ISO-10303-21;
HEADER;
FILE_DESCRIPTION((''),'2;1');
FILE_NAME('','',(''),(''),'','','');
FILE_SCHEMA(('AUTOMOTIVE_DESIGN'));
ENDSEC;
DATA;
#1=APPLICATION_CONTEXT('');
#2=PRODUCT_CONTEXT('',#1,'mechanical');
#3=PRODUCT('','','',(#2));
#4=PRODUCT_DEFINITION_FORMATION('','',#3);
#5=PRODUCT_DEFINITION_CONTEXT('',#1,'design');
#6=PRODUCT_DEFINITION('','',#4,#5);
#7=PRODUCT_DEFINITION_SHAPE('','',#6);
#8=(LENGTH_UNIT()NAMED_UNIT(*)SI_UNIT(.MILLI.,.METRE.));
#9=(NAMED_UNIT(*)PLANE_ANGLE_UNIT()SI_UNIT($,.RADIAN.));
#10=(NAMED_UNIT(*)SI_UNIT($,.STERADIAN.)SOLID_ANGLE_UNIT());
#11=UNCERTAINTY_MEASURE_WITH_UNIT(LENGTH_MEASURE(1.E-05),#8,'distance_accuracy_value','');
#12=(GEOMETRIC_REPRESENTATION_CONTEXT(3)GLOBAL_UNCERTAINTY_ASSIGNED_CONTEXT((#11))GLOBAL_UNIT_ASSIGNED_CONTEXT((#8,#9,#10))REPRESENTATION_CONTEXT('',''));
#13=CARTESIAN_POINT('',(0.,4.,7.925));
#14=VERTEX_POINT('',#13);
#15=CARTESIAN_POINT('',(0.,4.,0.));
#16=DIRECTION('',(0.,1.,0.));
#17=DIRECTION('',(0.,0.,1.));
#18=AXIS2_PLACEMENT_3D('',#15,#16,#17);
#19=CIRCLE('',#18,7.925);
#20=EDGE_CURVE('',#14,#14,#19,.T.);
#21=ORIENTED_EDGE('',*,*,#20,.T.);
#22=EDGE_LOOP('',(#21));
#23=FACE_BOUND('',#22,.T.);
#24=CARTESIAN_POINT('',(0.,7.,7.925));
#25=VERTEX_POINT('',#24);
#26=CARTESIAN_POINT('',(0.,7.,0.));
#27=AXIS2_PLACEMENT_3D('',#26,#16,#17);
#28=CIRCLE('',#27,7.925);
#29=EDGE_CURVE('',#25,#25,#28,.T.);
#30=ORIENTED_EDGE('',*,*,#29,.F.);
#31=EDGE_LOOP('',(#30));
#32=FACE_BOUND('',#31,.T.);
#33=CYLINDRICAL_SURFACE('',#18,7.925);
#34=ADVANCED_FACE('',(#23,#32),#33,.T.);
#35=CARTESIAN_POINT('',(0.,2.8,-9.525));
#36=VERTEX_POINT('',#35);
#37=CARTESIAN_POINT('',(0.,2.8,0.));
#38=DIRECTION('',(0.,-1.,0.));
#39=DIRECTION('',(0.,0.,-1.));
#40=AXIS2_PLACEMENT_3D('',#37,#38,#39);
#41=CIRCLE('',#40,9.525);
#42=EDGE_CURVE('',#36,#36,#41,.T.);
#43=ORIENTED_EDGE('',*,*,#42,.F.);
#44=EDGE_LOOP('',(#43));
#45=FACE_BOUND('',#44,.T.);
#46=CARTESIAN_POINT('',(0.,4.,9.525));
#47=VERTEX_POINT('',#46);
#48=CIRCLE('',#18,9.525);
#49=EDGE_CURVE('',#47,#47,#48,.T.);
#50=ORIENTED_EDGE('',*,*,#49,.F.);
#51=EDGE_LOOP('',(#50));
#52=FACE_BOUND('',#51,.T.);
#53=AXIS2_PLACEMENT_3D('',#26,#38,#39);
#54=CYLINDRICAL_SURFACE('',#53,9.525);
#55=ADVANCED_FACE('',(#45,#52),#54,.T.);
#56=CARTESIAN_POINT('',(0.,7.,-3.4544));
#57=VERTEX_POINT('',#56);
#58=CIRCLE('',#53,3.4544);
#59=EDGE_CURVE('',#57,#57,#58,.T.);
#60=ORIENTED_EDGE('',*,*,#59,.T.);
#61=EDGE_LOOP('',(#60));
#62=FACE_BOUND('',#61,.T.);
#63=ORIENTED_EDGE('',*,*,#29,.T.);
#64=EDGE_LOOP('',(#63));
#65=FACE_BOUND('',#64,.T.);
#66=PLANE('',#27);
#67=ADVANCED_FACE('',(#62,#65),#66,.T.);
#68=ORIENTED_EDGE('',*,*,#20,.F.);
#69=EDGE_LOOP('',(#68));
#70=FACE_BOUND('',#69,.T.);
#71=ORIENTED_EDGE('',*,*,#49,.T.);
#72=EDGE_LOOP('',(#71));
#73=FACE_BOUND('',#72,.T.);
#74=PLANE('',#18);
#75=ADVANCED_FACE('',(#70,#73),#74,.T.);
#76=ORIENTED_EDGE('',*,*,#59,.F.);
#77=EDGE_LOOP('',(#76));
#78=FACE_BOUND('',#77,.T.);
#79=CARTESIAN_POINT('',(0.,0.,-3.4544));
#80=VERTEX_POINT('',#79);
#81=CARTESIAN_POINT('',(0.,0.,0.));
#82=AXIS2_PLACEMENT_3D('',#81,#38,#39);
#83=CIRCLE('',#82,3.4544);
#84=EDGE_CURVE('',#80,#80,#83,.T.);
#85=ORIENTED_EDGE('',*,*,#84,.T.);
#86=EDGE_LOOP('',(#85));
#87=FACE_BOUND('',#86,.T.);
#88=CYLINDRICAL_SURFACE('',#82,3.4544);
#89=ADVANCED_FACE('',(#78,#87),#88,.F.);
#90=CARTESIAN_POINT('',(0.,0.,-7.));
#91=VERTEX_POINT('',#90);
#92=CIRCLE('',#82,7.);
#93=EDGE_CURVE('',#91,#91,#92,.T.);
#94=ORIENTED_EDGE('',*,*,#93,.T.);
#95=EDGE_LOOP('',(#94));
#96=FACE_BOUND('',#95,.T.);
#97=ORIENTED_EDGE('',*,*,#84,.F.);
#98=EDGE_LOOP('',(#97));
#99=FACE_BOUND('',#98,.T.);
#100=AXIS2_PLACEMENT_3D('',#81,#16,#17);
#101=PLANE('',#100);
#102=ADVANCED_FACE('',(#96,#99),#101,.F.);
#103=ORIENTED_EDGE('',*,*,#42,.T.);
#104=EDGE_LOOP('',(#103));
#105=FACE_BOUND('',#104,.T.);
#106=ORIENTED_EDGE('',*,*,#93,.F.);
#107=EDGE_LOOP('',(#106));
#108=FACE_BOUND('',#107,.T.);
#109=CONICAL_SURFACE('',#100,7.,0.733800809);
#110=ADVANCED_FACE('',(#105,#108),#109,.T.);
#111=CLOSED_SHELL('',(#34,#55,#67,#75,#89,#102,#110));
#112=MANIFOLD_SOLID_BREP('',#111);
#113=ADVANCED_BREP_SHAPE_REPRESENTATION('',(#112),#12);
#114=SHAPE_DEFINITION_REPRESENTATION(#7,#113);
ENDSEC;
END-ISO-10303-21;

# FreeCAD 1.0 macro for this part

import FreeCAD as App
import Part
import Sketcher
Q = App.Units.Quantity

doc = App.newDocument("Part")
params = doc.addObject("Spreadsheet::Sheet", "Params")
for row, (alias, value) in enumerate([
    ("sketch1_diameter", "19.05 mm"),
    ("pad1_length", "7 mm"),
    ("hole_diameter", "6.9088 mm"),
    ("sketch3_diameter", "15.85 mm"),
    ("pocket1_length", "3 mm"),
    ("groove_angle", "360 deg"),
], start=1):
    params.set(f"A{row}", alias)
    params.set(f"B{row}", "=" + value)
    params.setAlias(f"B{row}", alias)

body = doc.addObject("PartDesign::Body", "Body")

sketch1 = body.newObject("Sketcher::SketchObject", "Sketch")
sketch1.AttachmentSupport = (doc.getObject("XZ_Plane"), [""])
sketch1.MapMode = "FlatFace"
sketch1.addGeometry(Part.Circle(App.Vector(0, 0, 0), App.Vector(0, 0, 1), 10), False)
sketch1.addConstraint(Sketcher.Constraint("Coincident", 0, 3, -1, 1))
sketch1.addConstraint(Sketcher.Constraint("Diameter", 0, Q("19.05 mm")))
sketch1.setExpression("Constraints[1]", "Params.sketch1_diameter")
pad1 = body.newObject("PartDesign::Pad", "Pad")
pad1.Profile = sketch1
pad1.setExpression("Length", "Params.pad1_length")
pad1.Reversed = True

sketch2 = body.newObject("Sketcher::SketchObject", "Sketch001")
sketch2.AttachmentSupport = (doc.getObject("XZ_Plane"), [""])
sketch2.MapMode = "FlatFace"
sketch2.addGeometry(Part.Circle(App.Vector(0, 0, 0), App.Vector(0, 0, 1), 3.5), False)
sketch2.addConstraint(Sketcher.Constraint("Coincident", 0, 3, -1, 1))
sketch2.addConstraint(Sketcher.Constraint("Diameter", 0, Q("6.9088 mm")))
doc.recompute()
hole = body.newObject("PartDesign::Hole", "Hole")
hole.Profile = sketch2
hole.ThreadType = "None"
hole.setExpression("Diameter", "Params.hole_diameter")
hole.DepthType = "ThroughAll"

sketch3 = body.newObject("Sketcher::SketchObject", "Sketch002")
sketch3.AttachmentSupport = (doc.getObject("XZ_Plane"), [""])
sketch3.MapMode = "FlatFace"
sketch3.AttachmentOffset = App.Placement(App.Vector(0, 0, -7), App.Rotation())
sketch3.addGeometry(Part.LineSegment(App.Vector(-13, -13, 0), App.Vector(-13, 13, 0)), False)
sketch3.addGeometry(Part.LineSegment(App.Vector(-13, 13, 0), App.Vector(13, 13, 0)), False)
sketch3.addGeometry(Part.LineSegment(App.Vector(13, 13, 0), App.Vector(13, -13, 0)), False)
sketch3.addGeometry(Part.LineSegment(App.Vector(13, -13, 0), App.Vector(-13, -13, 0)), False)
sketch3.addGeometry(Part.Circle(App.Vector(0, 0, 0), App.Vector(0, 0, 1), 8), False)
sketch3.addConstraint(Sketcher.Constraint("Coincident", 0, 2, 1, 1))
sketch3.addConstraint(Sketcher.Constraint("Coincident", 1, 2, 2, 1))
sketch3.addConstraint(Sketcher.Constraint("Coincident", 2, 2, 3, 1))
sketch3.addConstraint(Sketcher.Constraint("Coincident", 3, 2, 0, 1))
sketch3.addConstraint(Sketcher.Constraint("Vertical", 0))
sketch3.addConstraint(Sketcher.Constraint("Horizontal", 1))
sketch3.addConstraint(Sketcher.Constraint("Vertical", 2))
sketch3.addConstraint(Sketcher.Constraint("Horizontal", 3))
sketch3.addConstraint(Sketcher.Constraint("Coincident", 4, 3, -1, 1))
sketch3.addConstraint(Sketcher.Constraint("Symmetric", 0, 2, 2, 2, -1, 1))
sketch3.addConstraint(Sketcher.Constraint("Equal", 3, 0))
sketch3.addConstraint(Sketcher.Constraint("Diameter", 4, Q("15.85 mm")))
sketch3.addConstraint(Sketcher.Constraint("DistanceX", 1, 1, 1, 2, Q("26.618 mm")))
sketch3.setExpression("Constraints[11]", "Params.sketch3_diameter")
pocket1 = body.newObject("PartDesign::Pocket", "Pocket")
pocket1.Profile = sketch3
pocket1.setExpression("Length", "Params.pocket1_length")
pocket1.Reversed = True

sketch4 = body.newObject("Sketcher::SketchObject", "Sketch003")
sketch4.AttachmentSupport = (doc.getObject("XY_Plane"), [""])
sketch4.MapMode = "FlatFace"
sketch4.addGeometry(Part.LineSegment(App.Vector(-7, 0, 0), App.Vector(-9.5, 2.8, 0)), False)
sketch4.addGeometry(Part.LineSegment(App.Vector(-9.5, 2.8, 0), App.Vector(-11.9, 2.8, 0)), False)
sketch4.addGeometry(Part.LineSegment(App.Vector(-11.9, 2.8, 0), App.Vector(-11.9, -3.8, 0)), False)
sketch4.addGeometry(Part.LineSegment(App.Vector(-11.9, -3.8, 0), App.Vector(-7, -3.8, 0)), False)
sketch4.addGeometry(Part.LineSegment(App.Vector(-7, -3.8, 0), App.Vector(-7, 0, 0)), False)
sketch4.addConstraint(Sketcher.Constraint("Coincident", 0, 2, 1, 1))
sketch4.addConstraint(Sketcher.Constraint("Coincident", 1, 2, 2, 1))
sketch4.addConstraint(Sketcher.Constraint("Coincident", 2, 2, 3, 1))
sketch4.addConstraint(Sketcher.Constraint("Coincident", 3, 2, 4, 1))
sketch4.addConstraint(Sketcher.Constraint("Coincident", 4, 2, 0, 1))
sketch4.addConstraint(Sketcher.Constraint("Horizontal", 1))
sketch4.addConstraint(Sketcher.Constraint("Vertical", 2))
sketch4.addConstraint(Sketcher.Constraint("Horizontal", 3))
sketch4.addConstraint(Sketcher.Constraint("Vertical", 4))
sketch4.addConstraint(Sketcher.Constraint("PointOnObject", 4, 2, -1))
sketch4.addConstraint(Sketcher.Constraint("DistanceX", 3, 2, -1, 1, Q("7 mm")))
sketch4.addConstraint(Sketcher.Constraint("DistanceY", -1, 1, 0, 2, Q("2.8 mm")))
sketch4.addConstraint(Sketcher.Constraint("DistanceX", 0, 2, -1, 1, Q("9.525 mm")))
sketch4.addConstraint(Sketcher.Constraint("DistanceY", 2, 2, 2, 1, Q("6.61139 mm")))
sketch4.addConstraint(Sketcher.Constraint("DistanceX", 1, 2, 1, 1, Q("2.333525 mm")))
groove = body.newObject("PartDesign::Groove", "Groove")
groove.Profile = sketch4
groove.ReferenceAxis = (sketch4, ["V_Axis"])
groove.setExpression("Angle", "Params.groove_angle")

doc.recompute()
